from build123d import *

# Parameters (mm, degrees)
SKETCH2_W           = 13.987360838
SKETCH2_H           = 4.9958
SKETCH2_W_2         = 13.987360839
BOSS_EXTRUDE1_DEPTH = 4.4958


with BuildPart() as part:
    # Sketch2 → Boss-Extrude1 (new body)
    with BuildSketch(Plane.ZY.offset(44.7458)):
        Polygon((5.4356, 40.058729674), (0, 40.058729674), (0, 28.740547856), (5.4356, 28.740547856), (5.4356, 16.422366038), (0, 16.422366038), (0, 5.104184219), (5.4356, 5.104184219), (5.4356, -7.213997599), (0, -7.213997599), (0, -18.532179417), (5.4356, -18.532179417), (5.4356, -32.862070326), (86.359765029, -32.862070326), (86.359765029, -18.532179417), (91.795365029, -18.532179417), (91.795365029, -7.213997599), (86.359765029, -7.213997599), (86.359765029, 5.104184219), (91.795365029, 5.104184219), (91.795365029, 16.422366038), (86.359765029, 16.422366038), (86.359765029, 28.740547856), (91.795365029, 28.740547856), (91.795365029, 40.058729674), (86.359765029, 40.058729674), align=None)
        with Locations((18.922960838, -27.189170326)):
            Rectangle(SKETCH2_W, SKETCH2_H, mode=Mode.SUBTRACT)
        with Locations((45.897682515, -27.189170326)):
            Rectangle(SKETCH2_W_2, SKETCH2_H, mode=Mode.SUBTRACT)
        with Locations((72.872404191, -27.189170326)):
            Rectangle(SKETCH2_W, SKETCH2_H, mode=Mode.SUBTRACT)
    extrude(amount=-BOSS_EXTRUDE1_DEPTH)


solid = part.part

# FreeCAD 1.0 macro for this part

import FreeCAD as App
import Part
import Sketcher

V = App.Vector
Q = App.Units.Quantity

doc = App.newDocument("Part")
body = doc.addObject("PartDesign::Body", "Body")

sketch1 = doc.addObject("Sketcher::SketchObject", "Sketch")
body.addObject(sketch1)
sketch1.AttachmentSupport = (doc.YZ_Plane, [""])
sketch1.MapMode = "FlatFace"
sketch1.AttachmentOffset = App.Placement(V(0, 0, -44.7458), App.Rotation())
sketch1.addGeometry([
    Part.LineSegment(V(40.05873, 0, 0), V(28.740548, 0, 0)),
    Part.LineSegment(V(28.740548, 0, 0), V(28.740548, 5.4356, 0)),
    Part.LineSegment(V(28.740548, 5.4356, 0), V(16.422366, 5.4356, 0)),
    Part.LineSegment(V(16.422366, 5.4356, 0), V(16.422366, 0, 0)),
    Part.LineSegment(V(16.422366, 0, 0), V(5.104184, 0, 0)),
    Part.LineSegment(V(5.104184, 0, 0), V(5.104184, 5.4356, 0)),
    Part.LineSegment(V(5.104184, 5.4356, 0), V(-7.213998, 5.4356, 0)),
    Part.LineSegment(V(-7.213998, 5.4356, 0), V(-7.213998, 0, 0)),
    Part.LineSegment(V(-7.213998, 0, 0), V(-18.532179, 0, 0)),
    Part.LineSegment(V(-18.532179, 0, 0), V(-18.532179, 5.4356, 0)),
    Part.LineSegment(V(-18.532179, 5.4356, 0), V(-32.86207, 5.4356, 0)),
    Part.LineSegment(V(-32.86207, 5.4356, 0), V(-32.86207, 86.359765, 0)),
    Part.LineSegment(V(-32.86207, 86.359765, 0), V(-18.532179, 86.359765, 0)),
    Part.LineSegment(V(-18.532179, 86.359765, 0), V(-18.532179, 91.795365, 0)),
    Part.LineSegment(V(-18.532179, 91.795365, 0), V(-7.213998, 91.795365, 0)),
    Part.LineSegment(V(-7.213998, 91.795365, 0), V(-7.213998, 86.359765, 0)),
    Part.LineSegment(V(-7.213998, 86.359765, 0), V(5.104184, 86.359765, 0)),
    Part.LineSegment(V(5.104184, 86.359765, 0), V(5.104184, 91.795365, 0)),
    Part.LineSegment(V(5.104184, 91.795365, 0), V(16.422366, 91.795365, 0)),
    Part.LineSegment(V(16.422366, 91.795365, 0), V(16.422366, 86.359765, 0)),
    Part.LineSegment(V(16.422366, 86.359765, 0), V(28.740548, 86.359765, 0)),
    Part.LineSegment(V(28.740548, 86.359765, 0), V(28.740548, 91.795365, 0)),
    Part.LineSegment(V(28.740548, 91.795365, 0), V(40.05873, 91.795365, 0)),
    Part.LineSegment(V(40.05873, 91.795365, 0), V(40.05873, 0, 0)),
    Part.LineSegment(V(-29.68707, 25.916641, 0), V(-29.68707, 11.92928, 0)),
    Part.LineSegment(V(-29.68707, 11.92928, 0), V(-24.69127, 11.92928, 0)),
    Part.LineSegment(V(-24.69127, 11.92928, 0), V(-24.69127, 25.916641, 0)),
    Part.LineSegment(V(-24.69127, 25.916641, 0), V(-29.68707, 25.916641, 0)),
    Part.LineSegment(V(-29.68707, 52.891363, 0), V(-29.68707, 38.904002, 0)),
    Part.LineSegment(V(-29.68707, 38.904002, 0), V(-24.69127, 38.904002, 0)),
    Part.LineSegment(V(-24.69127, 38.904002, 0), V(-24.69127, 52.891363, 0)),
    Part.LineSegment(V(-24.69127, 52.891363, 0), V(-29.68707, 52.891363, 0)),
    Part.LineSegment(V(-29.68707, 79.866085, 0), V(-29.68707, 65.878724, 0)),
    Part.LineSegment(V(-29.68707, 65.878724, 0), V(-24.69127, 65.878724, 0)),
    Part.LineSegment(V(-24.69127, 65.878724, 0), V(-24.69127, 79.866085, 0)),
    Part.LineSegment(V(-24.69127, 79.866085, 0), V(-29.68707, 79.866085, 0)),
], False)
sketch1.addConstraint([
    Sketcher.Constraint("Coincident", 0, 2, 1, 1),
    Sketcher.Constraint("Coincident", 1, 2, 2, 1),
    Sketcher.Constraint("Coincident", 2, 2, 3, 1),
    Sketcher.Constraint("Coincident", 3, 2, 4, 1),
    Sketcher.Constraint("Coincident", 4, 2, 5, 1),
    Sketcher.Constraint("Coincident", 5, 2, 6, 1),
    Sketcher.Constraint("Coincident", 6, 2, 7, 1),
    Sketcher.Constraint("Coincident", 7, 2, 8, 1),
    Sketcher.Constraint("Coincident", 8, 2, 9, 1),
    Sketcher.Constraint("Coincident", 9, 2, 10, 1),
    Sketcher.Constraint("Coincident", 10, 2, 11, 1),
    Sketcher.Constraint("Coincident", 11, 2, 12, 1),
    Sketcher.Constraint("Coincident", 12, 2, 13, 1),
    Sketcher.Constraint("Coincident", 13, 2, 14, 1),
    Sketcher.Constraint("Coincident", 14, 2, 15, 1),
    Sketcher.Constraint("Coincident", 15, 2, 16, 1),
    Sketcher.Constraint("Coincident", 16, 2, 17, 1),
    Sketcher.Constraint("Coincident", 17, 2, 18, 1),
    Sketcher.Constraint("Coincident", 18, 2, 19, 1),
    Sketcher.Constraint("Coincident", 19, 2, 20, 1),
    Sketcher.Constraint("Coincident", 20, 2, 21, 1),
    Sketcher.Constraint("Coincident", 21, 2, 22, 1),
    Sketcher.Constraint("Coincident", 22, 2, 23, 1),
    Sketcher.Constraint("Coincident", 23, 2, 0, 1),
    Sketcher.Constraint("Coincident", 24, 2, 25, 1),
    Sketcher.Constraint("Coincident", 25, 2, 26, 1),
    Sketcher.Constraint("Coincident", 26, 2, 27, 1),
    Sketcher.Constraint("Coincident", 27, 2, 24, 1),
    Sketcher.Constraint("Coincident", 28, 2, 29, 1),
    Sketcher.Constraint("Coincident", 29, 2, 30, 1),
    Sketcher.Constraint("Coincident", 30, 2, 31, 1),
    Sketcher.Constraint("Coincident", 31, 2, 28, 1),
    Sketcher.Constraint("Coincident", 32, 2, 33, 1),
    Sketcher.Constraint("Coincident", 33, 2, 34, 1),
    Sketcher.Constraint("Coincident", 34, 2, 35, 1),
    Sketcher.Constraint("Coincident", 35, 2, 32, 1),
    Sketcher.Constraint("Horizontal", 0),
    Sketcher.Constraint("Vertical", 1),
    Sketcher.Constraint("Horizontal", 2),
    Sketcher.Constraint("Vertical", 3),
    Sketcher.Constraint("Horizontal", 4),
    Sketcher.Constraint("Vertical", 5),
    Sketcher.Constraint("Horizontal", 6),
    Sketcher.Constraint("Vertical", 7),
    Sketcher.Constraint("Horizontal", 8),
    Sketcher.Constraint("Vertical", 9),
    Sketcher.Constraint("Horizontal", 10),
    Sketcher.Constraint("Vertical", 11),
    Sketcher.Constraint("Horizontal", 12),
    Sketcher.Constraint("Vertical", 13),
    Sketcher.Constraint("Horizontal", 14),
    Sketcher.Constraint("Vertical", 15),
    Sketcher.Constraint("Horizontal", 16),
    Sketcher.Constraint("Vertical", 17),
    Sketcher.Constraint("Horizontal", 18),
    Sketcher.Constraint("Vertical", 19),
    Sketcher.Constraint("Horizontal", 20),
    Sketcher.Constraint("Vertical", 21),
    Sketcher.Constraint("Horizontal", 22),
    Sketcher.Constraint("Vertical", 23),
    Sketcher.Constraint("Vertical", 24),
    Sketcher.Constraint("Horizontal", 25),
    Sketcher.Constraint("Vertical", 26),
    Sketcher.Constraint("Horizontal", 27),
    Sketcher.Constraint("Vertical", 28),
    Sketcher.Constraint("Horizontal", 29),
    Sketcher.Constraint("Vertical", 30),
    Sketcher.Constraint("Horizontal", 31),
    Sketcher.Constraint("Vertical", 32),
    Sketcher.Constraint("Horizontal", 33),
    Sketcher.Constraint("Vertical", 34),
    Sketcher.Constraint("Horizontal", 35),
    Sketcher.Constraint("PointOnObject", 0, 2, -1),
    Sketcher.Constraint("PointOnObject", 3, 2, -1),
    Sketcher.Constraint("PointOnObject", 7, 2, -1),
    Sketcher.Constraint("Horizontal", 2, 2, 5, 2),
    Sketcher.Constraint("Horizontal", 6, 2, 9, 2),
    Sketcher.Constraint("Horizontal", 12, 2, 15, 2),
    Sketcher.Constraint("Horizontal", 14, 2, 17, 2),
    Sketcher.Constraint("Horizontal", 16, 2, 19, 2),
    Sketcher.Constraint("Horizontal", 18, 2, 21, 2),
    Sketcher.Constraint("Vertical", 9, 2, 12, 2),
    Sketcher.Constraint("Vertical", 7, 2, 14, 2),
    Sketcher.Constraint("Vertical", 5, 2, 16, 2),
    Sketcher.Constraint("Vertical", 3, 2, 18, 2),
    Sketcher.Constraint("Vertical", 1, 2, 20, 2),
    Sketcher.Constraint("Vertical", 27, 2, 28, 2),
    Sketcher.Constraint("Vertical", 26, 2, 29, 2),
    Sketcher.Constraint("Vertical", 31, 2, 32, 2),
    Sketcher.Constraint("Vertical", 30, 2, 33, 2),
    Sketcher.Constraint("Equal", 0, 4),
    Sketcher.Constraint("Equal", 2, 6),
    Sketcher.Constraint("Equal", 4, 8),
    Sketcher.Constraint("Equal", 9, 13),
    Sketcher.Constraint("Equal", 26, 28),
    Sketcher.Constraint("Equal", 30, 32),
    Sketcher.Constraint("DistanceY", 1, 1, 1, 2, Q("0.214 in")),
    Sketcher.Constraint("DistanceX", 10, 2, 24, 2, Q("0.125 in")),
    Sketcher.Constraint("DistanceX", 25, 1, 25, 2, 4.9958),
    Sketcher.Constraint("DistanceX", 0, 2, 0, 1, 11.318182),
    Sketcher.Constraint("DistanceX", 2, 2, 2, 1, 12.318182),
    Sketcher.Constraint("DistanceX", 10, 2, 10, 1, 14.329891),
    Sketcher.Constraint("DistanceY", 24, 2, 24, 1, 13.987361),
    Sketcher.Constraint("DistanceY", 11, 1, 11, 2, 80.924165),
    Sketcher.Constraint("DistanceX", 8, 2, -1, 1, 18.532179),
    Sketcher.Constraint("DistanceY", -1, 1, 24, 2, 11.92928),
    Sketcher.Constraint("DistanceY", 27, 2, 28, 2, 12.987361),
    Sketcher.Constraint("DistanceY", 31, 2, 32, 2, 12.987361),
])
pad1 = doc.addObject("PartDesign::Pad", "Pad")
body.addObject(pad1)
pad1.Profile = sketch1
pad1.Length = Q("0.177 in")

doc.recompute()
